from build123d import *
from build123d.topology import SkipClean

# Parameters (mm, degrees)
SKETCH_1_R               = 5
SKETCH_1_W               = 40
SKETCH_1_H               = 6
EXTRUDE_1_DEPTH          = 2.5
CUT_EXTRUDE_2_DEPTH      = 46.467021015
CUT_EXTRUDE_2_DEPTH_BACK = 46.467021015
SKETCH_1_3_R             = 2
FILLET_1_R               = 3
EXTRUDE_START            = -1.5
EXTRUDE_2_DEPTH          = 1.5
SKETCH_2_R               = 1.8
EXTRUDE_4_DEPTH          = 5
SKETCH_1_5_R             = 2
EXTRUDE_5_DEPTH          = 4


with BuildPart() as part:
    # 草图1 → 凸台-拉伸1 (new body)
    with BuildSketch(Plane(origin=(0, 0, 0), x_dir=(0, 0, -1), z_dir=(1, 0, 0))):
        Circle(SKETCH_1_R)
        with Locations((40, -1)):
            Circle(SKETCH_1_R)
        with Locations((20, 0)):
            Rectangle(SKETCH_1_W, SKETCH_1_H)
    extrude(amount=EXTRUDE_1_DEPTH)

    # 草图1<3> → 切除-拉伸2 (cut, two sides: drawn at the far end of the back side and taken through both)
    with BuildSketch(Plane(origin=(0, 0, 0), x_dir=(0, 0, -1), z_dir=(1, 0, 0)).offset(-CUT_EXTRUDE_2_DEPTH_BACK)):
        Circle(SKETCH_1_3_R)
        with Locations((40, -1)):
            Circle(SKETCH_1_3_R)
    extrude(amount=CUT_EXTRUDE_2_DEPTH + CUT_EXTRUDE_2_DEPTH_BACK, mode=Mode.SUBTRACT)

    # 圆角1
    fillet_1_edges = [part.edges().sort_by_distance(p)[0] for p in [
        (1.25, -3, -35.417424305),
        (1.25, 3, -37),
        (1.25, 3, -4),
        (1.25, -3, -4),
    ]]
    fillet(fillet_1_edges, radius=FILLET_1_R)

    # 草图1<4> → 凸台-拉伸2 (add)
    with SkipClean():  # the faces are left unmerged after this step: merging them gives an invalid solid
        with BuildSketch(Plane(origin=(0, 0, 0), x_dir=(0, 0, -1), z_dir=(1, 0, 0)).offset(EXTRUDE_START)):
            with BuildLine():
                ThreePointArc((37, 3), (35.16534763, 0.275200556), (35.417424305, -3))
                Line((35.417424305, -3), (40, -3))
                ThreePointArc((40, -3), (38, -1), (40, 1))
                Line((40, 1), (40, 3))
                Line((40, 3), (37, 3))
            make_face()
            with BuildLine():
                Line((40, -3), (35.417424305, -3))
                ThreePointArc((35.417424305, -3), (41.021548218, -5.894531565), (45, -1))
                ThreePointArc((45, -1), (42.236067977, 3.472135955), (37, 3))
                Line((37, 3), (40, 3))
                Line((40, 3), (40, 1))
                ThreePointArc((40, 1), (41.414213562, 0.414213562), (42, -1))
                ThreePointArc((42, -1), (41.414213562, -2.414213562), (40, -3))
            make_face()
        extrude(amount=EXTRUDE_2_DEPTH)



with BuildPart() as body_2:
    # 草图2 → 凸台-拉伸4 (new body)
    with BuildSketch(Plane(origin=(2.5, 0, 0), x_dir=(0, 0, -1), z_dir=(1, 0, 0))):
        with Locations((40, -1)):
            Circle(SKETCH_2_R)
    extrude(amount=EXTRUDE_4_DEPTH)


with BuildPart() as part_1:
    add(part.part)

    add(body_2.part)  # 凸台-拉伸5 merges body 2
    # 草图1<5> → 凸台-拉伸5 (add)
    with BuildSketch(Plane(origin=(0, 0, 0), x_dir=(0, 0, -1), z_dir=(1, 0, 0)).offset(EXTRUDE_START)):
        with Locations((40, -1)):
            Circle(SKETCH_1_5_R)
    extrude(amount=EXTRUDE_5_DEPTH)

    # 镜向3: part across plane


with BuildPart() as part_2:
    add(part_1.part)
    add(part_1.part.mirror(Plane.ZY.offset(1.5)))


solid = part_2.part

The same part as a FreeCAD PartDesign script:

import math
import FreeCAD as App
import Part
import Sketcher
Q = App.Units.Quantity


def edges_at(feature, points):
    """Names of the edges that pass closest to the given points."""
    edges = feature.Shape.Edges
    near = lambda p: min(range(len(edges)), key=lambda i: edges[i].distToShape(Part.Vertex(*p))[0])
    return sorted({f"Edge{near(p) + 1}" for p in points})

doc = App.newDocument("Part")
body = doc.addObject("PartDesign::Body", "Body")

# Sketch on YZ plane
sketch1 = doc.addObject("Sketcher::SketchObject", "Sketch")
body.addObject(sketch1)
sketch1.AttachmentSupport = (doc.YZ_Plane, [""])
sketch1.MapMode = "FlatFace"
sketch1.addGeometry([
    Part.LineSegment(App.Vector(-3, -4, 0), App.Vector(-3, -35.417424, 0)),
    Part.ArcOfCircle(Part.Circle(App.Vector(-1, -40, 0), App.Vector(0, 0, 1), 5), math.radians(113.578178), math.radians(396.869898)),
    Part.LineSegment(App.Vector(3, -37, 0), App.Vector(3, -4, 0)),
    Part.ArcOfCircle(Part.Circle(App.Vector(0, 0, 0), App.Vector(0, 0, 1), 5), math.radians(-53.130102), math.radians(233.130102)),
], False)
sketch1.addConstraint([
    Sketcher.Constraint("Coincident", 0, 2, 1, 1),
    Sketcher.Constraint("Coincident", 1, 2, 2, 1),
    Sketcher.Constraint("Coincident", 2, 2, 3, 1),
    Sketcher.Constraint("Coincident", 3, 2, 0, 1),
    Sketcher.Constraint("Vertical", 0),
    Sketcher.Constraint("Vertical", 2),
    Sketcher.Constraint("Coincident", 3, 3, -1, 1),
    Sketcher.Constraint("Equal", 1, 3),
    Sketcher.Constraint("Horizontal", 2, 2, 3, 2),
    Sketcher.Constraint("Radius", 1, Q("5 mm")),
    Sketcher.Constraint("DistanceY", 2, 1, 2, 2, Q("33 mm")),
    Sketcher.Constraint("DistanceX", 1, 3, -1, 1, Q("1 mm")),
    Sketcher.Constraint("DistanceY", 1, 3, -1, 1, Q("40 mm")),
])
pad1 = doc.addObject("PartDesign::Pad", "Pad")
body.addObject(pad1)
pad1.Profile = sketch1
pad1.Length = 2.5

# Sketch on YZ plane
sketch2 = doc.addObject("Sketcher::SketchObject", "Sketch001")
body.addObject(sketch2)
sketch2.AttachmentSupport = (doc.YZ_Plane, [""])
sketch2.MapMode = "FlatFace"
sketch2.addGeometry([
    Part.Circle(App.Vector(0, 0, 0), App.Vector(0, 0, 1), 2),
    Part.Circle(App.Vector(-1, -40, 0), App.Vector(0, 0, 1), 2),
], False)
sketch2.addConstraint([
    Sketcher.Constraint("Coincident", 0, 3, -1, 1),
    Sketcher.Constraint("Equal", 0, 1),
    Sketcher.Constraint("Diameter", 0, Q("4 mm")),
    Sketcher.Constraint("DistanceX", 1, 3, -1, 1, Q("1 mm")),
    Sketcher.Constraint("DistanceY", 1, 3, -1, 1, Q("40 mm")),
])
pocket1 = doc.addObject("PartDesign::Pocket", "Pocket")
body.addObject(pocket1)
pocket1.Profile = sketch2
pocket1.Type = "ThroughAll"
pocket1.Midplane = True
doc.recompute()

fillet = doc.addObject("PartDesign::Fillet", "Fillet")
body.addObject(fillet)
fillet.Base = (pocket1, edges_at(pocket1, [
    (1.25, -3, -35.417),
    (1.25, 3, -37),
    (1.25, 3, -4),
    (1.25, -3, -4),
]))
fillet.Radius = 3

# Sketch on YZ plane
sketch3 = doc.addObject("Sketcher::SketchObject", "Sketch002")
body.addObject(sketch3)
sketch3.AttachmentSupport = (doc.YZ_Plane, [""])
sketch3.MapMode = "FlatFace"
sketch3.AttachmentOffset = App.Placement(App.Vector(0, 0, -1.5), App.Rotation())
sketch3.addGeometry([
    Part.ArcOfCircle(Part.Circle(App.Vector(-1, -40, 0), App.Vector(0, 0, 1), 5), math.radians(36.869898), math.radians(113.578178)),  # 0
    Part.LineSegment(App.Vector(-3, -35.417424, 0), App.Vector(-3, -40, 0)),  # 1
    Part.ArcOfCircle(Part.Circle(App.Vector(-1, -40, 0), App.Vector(0, 0, 1), 2), math.radians(0), math.radians(180)),  # 2
    Part.LineSegment(App.Vector(1, -40, 0), App.Vector(3, -40, 0)),  # 3
    Part.LineSegment(App.Vector(3, -40, 0), App.Vector(3, -37, 0)),  # 4
    Part.LineSegment(App.Vector(-3, -40, 0), App.Vector(-3, -35.417424, 0)),  # 5
    Part.ArcOfCircle(Part.Circle(App.Vector(-1, -40, 0), App.Vector(0, 0, 1), 5), math.radians(113.578178), math.radians(270)),  # 6
    Part.ArcOfCircle(Part.Circle(App.Vector(-1, -40, 0), App.Vector(0, 0, 1), 5), math.radians(-90), math.radians(36.869898)),  # 7
    Part.LineSegment(App.Vector(3, -37, 0), App.Vector(3, -40, 0)),  # 8
    Part.LineSegment(App.Vector(3, -40, 0), App.Vector(1, -40, 0)),  # 9
    Part.ArcOfCircle(Part.Circle(App.Vector(-1, -40, 0), App.Vector(0, 0, 1), 2), math.radians(-90), math.radians(0)),  # 10
    Part.ArcOfCircle(Part.Circle(App.Vector(-1, -40, 0), App.Vector(0, 0, 1), 2), math.radians(-180), math.radians(-90)),  # 11
], False)
sketch3.addConstraint([
    Sketcher.Constraint("Coincident", 0, 2, 1, 1),
    Sketcher.Constraint("Tangent", 1, 2, 2, 2),
    Sketcher.Constraint("Coincident", 2, 1, 3, 1),
    Sketcher.Constraint("Coincident", 3, 2, 4, 1),
    Sketcher.Constraint("Coincident", 4, 2, 0, 1),
    Sketcher.Constraint("Coincident", 5, 2, 6, 1),
    Sketcher.Constraint("Tangent", 6, 2, 7, 1),
    Sketcher.Constraint("Coincident", 7, 2, 8, 1),
    Sketcher.Constraint("Coincident", 8, 2, 9, 1),
    Sketcher.Constraint("Coincident", 9, 2, 10, 2),
    Sketcher.Constraint("Tangent", 10, 1, 11, 2),
    Sketcher.Constraint("Tangent", 11, 1, 5, 1),
    Sketcher.Constraint("Vertical", 1),
    Sketcher.Constraint("Horizontal", 3),
    Sketcher.Constraint("Vertical", 4),
    Sketcher.Constraint("Vertical", 5),
    Sketcher.Constraint("Vertical", 8),
    Sketcher.Constraint("Horizontal", 9),
    Sketcher.Constraint("Coincident", 2, 3, 0, 3),
    Sketcher.Constraint("Coincident", 6, 3, 0, 3),
    Sketcher.Constraint("Coincident", 10, 3, 0, 3),
    Sketcher.Constraint("Coincident", 5, 2, 0, 2),
    Sketcher.Constraint("Coincident", 7, 2, 4, 2),
    Sketcher.Constraint("Coincident", 9, 2, 2, 1),
    Sketcher.Constraint("Symmetric", 1, 2, 3, 2, -2),
    Sketcher.Constraint("Vertical", 11, 3, 6, 2),
    Sketcher.Constraint("Vertical", 6, 2, 10, 1),
    Sketcher.Constraint("Radius", 0, Q("5 mm")),
    Sketcher.Constraint("Radius", 2, Q("2 mm")),
    Sketcher.Constraint("DistanceX", 3, 1, 3, 2, Q("2 mm")),
    Sketcher.Constraint("DistanceY", 0, 3, -1, 1, Q("40 mm")),
])
pad2 = doc.addObject("PartDesign::Pad", "Pad001")
body.addObject(pad2)
pad2.Profile = sketch3
pad2.Length = 1.5
body2 = doc.addObject("PartDesign::Body", "Body001")

# Sketch on YZ plane
sketch4 = doc.addObject("Sketcher::SketchObject", "Sketch003")
body2.addObject(sketch4)
sketch4.AttachmentSupport = (doc.getObject("YZ_Plane001"), [""])
sketch4.MapMode = "FlatFace"
sketch4.AttachmentOffset = App.Placement(App.Vector(0, 0, 2.5), App.Rotation())
sketch4.addGeometry(Part.Circle(App.Vector(-1, -40, 0), App.Vector(0, 0, 1), 1.8), False)
sketch4.addConstraint([
    Sketcher.Constraint("Diameter", 0, Q("3.6 mm")),
    Sketcher.Constraint("DistanceX", 0, 3, -1, 1, Q("1 mm")),
    Sketcher.Constraint("DistanceY", 0, 3, -1, 1, Q("40 mm")),
])
pad3 = doc.addObject("PartDesign::Pad", "Pad002")
body2.addObject(pad3)
pad3.Profile = sketch4
pad3.Length = 5
body.AllowCompound = True
doc.recompute()

boolean = doc.addObject("PartDesign::Boolean", "Boolean")
body.addObject(boolean)
boolean.Type = "Fuse"
boolean.addObjects([body2])

# Sketch on YZ plane
sketch5 = doc.addObject("Sketcher::SketchObject", "Sketch004")
body.addObject(sketch5)
sketch5.AttachmentSupport = (doc.YZ_Plane, [""])
sketch5.MapMode = "FlatFace"
sketch5.AttachmentOffset = App.Placement(App.Vector(0, 0, -1.5), App.Rotation())
sketch5.addGeometry(Part.Circle(App.Vector(-1, -40, 0), App.Vector(0, 0, 1), 2), False)
sketch5.addConstraint([
    Sketcher.Constraint("Diameter", 0, Q("4 mm")),
    Sketcher.Constraint("DistanceX", 0, 3, -1, 1, Q("1 mm")),
    Sketcher.Constraint("DistanceY", 0, 3, -1, 1, Q("40 mm")),
])
pad4 = doc.addObject("PartDesign::Pad", "Pad003")
body.addObject(pad4)
pad4.Profile = sketch5
pad4.Length = 4
body3 = doc.addObject("PartDesign::Body", "Body002")
doc.recompute()

body3.BaseFeature = body
doc.recompute()

mirroring = doc.addObject("Part::Mirroring", "Mirroring")
mirroring.Source = body
mirroring.Base = App.Vector(-1.5, 0, 0)
mirroring.Normal = App.Vector(-1, 0, 0)
body4 = doc.addObject("PartDesign::Body", "Body003")
body4.BaseFeature = mirroring
boolean2 = doc.addObject("PartDesign::Boolean", "Boolean001")
body3.addObject(boolean2)
boolean2.Type = "Fuse"
boolean2.addObjects([body4])
doc.recompute()
mirroring.Visibility = False

doc.recompute()
